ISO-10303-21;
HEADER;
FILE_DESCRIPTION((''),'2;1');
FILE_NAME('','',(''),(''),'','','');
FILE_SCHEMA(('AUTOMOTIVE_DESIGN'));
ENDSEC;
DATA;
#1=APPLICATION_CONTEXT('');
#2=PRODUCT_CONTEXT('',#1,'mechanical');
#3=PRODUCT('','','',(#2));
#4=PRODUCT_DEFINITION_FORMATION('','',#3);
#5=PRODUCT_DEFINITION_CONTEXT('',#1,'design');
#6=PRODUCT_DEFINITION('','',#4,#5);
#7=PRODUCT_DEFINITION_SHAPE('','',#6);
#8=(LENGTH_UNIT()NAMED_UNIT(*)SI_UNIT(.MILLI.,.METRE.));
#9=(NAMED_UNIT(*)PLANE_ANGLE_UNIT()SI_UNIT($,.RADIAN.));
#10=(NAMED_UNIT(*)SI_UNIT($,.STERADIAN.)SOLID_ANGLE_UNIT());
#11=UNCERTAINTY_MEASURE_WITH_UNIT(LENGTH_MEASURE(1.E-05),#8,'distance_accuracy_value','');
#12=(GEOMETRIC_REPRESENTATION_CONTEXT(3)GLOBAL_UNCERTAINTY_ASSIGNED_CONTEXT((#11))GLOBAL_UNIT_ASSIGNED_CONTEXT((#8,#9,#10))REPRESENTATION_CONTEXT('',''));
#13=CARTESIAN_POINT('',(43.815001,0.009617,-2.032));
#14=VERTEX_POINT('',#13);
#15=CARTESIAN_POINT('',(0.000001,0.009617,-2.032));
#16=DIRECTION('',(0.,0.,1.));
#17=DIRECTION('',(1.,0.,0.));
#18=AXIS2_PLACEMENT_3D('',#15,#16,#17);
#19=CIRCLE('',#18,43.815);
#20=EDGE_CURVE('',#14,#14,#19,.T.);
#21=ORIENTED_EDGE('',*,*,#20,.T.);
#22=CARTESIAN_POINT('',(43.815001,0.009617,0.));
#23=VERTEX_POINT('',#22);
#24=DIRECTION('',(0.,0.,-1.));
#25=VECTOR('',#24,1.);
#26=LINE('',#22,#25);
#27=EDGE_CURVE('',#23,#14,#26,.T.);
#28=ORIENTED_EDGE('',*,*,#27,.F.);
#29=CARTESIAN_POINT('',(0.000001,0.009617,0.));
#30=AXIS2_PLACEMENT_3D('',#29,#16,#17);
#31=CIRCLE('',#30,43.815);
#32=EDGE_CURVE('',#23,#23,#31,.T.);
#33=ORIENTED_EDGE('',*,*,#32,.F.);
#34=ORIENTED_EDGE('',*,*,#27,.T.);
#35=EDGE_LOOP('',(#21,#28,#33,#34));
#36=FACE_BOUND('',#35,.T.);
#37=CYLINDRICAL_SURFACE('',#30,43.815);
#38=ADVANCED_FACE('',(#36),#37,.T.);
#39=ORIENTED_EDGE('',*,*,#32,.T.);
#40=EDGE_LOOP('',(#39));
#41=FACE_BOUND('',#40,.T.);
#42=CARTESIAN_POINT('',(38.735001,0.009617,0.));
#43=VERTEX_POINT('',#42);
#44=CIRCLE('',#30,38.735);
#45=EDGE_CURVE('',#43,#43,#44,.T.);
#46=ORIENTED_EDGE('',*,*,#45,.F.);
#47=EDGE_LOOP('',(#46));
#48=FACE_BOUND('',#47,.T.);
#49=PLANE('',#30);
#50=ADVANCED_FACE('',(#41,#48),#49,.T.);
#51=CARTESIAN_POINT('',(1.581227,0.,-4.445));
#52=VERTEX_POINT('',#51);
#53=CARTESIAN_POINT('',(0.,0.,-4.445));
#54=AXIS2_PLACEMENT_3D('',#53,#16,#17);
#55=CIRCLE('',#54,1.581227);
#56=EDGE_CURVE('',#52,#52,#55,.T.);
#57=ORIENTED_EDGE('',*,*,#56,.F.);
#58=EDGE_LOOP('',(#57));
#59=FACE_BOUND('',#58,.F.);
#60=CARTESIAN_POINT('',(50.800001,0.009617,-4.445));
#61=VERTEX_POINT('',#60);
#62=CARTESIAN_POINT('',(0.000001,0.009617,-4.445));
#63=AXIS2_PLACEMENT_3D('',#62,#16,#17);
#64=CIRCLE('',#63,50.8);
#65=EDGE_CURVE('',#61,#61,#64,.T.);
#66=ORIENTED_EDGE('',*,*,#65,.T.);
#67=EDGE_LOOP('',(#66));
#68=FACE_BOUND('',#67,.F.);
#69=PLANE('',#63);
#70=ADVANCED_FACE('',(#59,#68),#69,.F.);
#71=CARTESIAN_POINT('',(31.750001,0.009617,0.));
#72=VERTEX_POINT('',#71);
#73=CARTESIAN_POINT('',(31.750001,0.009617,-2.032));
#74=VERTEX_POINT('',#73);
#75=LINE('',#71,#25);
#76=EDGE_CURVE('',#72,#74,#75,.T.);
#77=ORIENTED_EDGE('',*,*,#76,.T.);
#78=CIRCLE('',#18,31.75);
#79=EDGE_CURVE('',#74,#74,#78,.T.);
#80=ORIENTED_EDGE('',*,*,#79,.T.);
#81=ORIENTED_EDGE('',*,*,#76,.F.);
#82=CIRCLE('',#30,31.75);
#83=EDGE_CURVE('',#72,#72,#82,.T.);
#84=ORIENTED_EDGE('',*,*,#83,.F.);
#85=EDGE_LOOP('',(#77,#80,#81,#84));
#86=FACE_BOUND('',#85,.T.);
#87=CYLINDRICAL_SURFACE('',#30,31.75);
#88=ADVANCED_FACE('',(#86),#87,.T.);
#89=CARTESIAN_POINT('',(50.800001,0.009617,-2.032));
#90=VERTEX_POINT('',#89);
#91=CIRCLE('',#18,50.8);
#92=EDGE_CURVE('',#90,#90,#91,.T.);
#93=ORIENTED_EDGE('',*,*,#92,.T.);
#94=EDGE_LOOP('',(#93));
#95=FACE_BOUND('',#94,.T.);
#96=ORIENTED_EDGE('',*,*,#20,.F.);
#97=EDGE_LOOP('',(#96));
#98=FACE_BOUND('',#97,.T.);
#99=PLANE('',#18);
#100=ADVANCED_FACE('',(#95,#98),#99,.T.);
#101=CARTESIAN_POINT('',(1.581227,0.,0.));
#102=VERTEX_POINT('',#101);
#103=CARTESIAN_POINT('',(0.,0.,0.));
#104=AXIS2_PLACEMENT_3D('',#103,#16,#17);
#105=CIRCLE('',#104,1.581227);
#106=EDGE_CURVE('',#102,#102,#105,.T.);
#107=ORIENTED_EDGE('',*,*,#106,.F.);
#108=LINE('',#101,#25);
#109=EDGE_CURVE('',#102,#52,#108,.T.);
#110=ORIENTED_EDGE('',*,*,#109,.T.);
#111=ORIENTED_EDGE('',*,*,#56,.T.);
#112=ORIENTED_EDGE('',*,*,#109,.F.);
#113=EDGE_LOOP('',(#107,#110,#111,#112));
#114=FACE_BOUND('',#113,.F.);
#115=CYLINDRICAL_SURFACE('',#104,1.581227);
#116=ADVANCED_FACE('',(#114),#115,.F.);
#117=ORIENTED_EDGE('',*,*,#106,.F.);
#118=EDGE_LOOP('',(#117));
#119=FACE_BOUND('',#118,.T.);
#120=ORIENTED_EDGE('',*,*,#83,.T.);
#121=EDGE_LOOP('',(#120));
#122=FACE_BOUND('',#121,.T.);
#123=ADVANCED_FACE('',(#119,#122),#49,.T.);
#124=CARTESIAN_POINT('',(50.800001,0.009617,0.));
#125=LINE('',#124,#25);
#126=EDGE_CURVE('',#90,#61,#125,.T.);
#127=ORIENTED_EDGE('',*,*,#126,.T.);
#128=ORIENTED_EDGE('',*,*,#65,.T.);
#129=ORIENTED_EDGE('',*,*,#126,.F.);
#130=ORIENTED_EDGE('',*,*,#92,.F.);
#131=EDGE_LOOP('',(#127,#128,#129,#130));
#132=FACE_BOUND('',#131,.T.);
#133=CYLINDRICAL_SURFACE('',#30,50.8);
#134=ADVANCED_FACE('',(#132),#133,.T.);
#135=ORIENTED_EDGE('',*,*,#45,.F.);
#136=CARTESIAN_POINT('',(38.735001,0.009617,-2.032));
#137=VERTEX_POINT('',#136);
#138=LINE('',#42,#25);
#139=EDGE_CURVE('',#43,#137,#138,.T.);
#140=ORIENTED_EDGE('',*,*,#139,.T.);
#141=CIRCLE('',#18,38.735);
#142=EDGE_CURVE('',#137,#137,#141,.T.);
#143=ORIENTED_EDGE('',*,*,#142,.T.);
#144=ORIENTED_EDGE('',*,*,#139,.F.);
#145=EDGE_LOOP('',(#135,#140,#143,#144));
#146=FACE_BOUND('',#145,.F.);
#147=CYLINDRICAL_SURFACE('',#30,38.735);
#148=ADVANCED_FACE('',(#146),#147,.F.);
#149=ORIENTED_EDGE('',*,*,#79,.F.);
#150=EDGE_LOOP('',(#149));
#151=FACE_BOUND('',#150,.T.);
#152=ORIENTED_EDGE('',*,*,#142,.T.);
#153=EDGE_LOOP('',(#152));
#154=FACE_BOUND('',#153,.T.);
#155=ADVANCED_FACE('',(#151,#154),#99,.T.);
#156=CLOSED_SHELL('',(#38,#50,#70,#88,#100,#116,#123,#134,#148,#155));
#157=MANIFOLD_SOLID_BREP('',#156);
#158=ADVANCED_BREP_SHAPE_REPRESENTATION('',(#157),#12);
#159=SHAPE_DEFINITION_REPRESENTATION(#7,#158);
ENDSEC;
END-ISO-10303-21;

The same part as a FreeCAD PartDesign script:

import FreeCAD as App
import Part
import Sketcher
Q = App.Units.Quantity

doc = App.newDocument("Part")
body = doc.addObject("PartDesign::Body", "Body")

# Sketch on XY plane
sketch1 = body.newObject("Sketcher::SketchObject", "Sketch")
sketch1.AttachmentSupport = (doc.getObject("XY_Plane"), [""])
sketch1.MapMode = "FlatFace"
sketch1.addGeometry([
    Part.Circle(App.Vector(0, 0, 0), App.Vector(0, 0, 1), 50.8),
    Part.Circle(App.Vector(0, 0, 0), App.Vector(0, 0, 1), 1.6),
], False)
sketch1.addConstraint([
    Sketcher.Constraint("Coincident", 1, 3, -1, 1),
    Sketcher.Constraint("PointOnObject", 0, 3, -2),
    Sketcher.Constraint("Diameter", 0, Q("4 in")),
    Sketcher.Constraint("Diameter", 1, 3.162455),
    Sketcher.Constraint("DistanceY", -1, 1, 0, 3, 0.009617),
])
pad1 = body.newObject("PartDesign::Pad", "Pad")
pad1.Profile = sketch1
pad1.Length = Q("0.175 in")
pad1.Reversed = True

# Sketch on XY plane
sketch2 = body.newObject("Sketcher::SketchObject", "Sketch001")
sketch2.AttachmentSupport = (doc.getObject("XY_Plane"), [""])
sketch2.MapMode = "FlatFace"
sketch2.addGeometry([
    Part.Circle(App.Vector(0, 0, 0), App.Vector(0, 0, 1), 51),
    Part.Circle(App.Vector(0, 0, 0), App.Vector(0, 0, 1), 44),
    Part.Circle(App.Vector(0, 0, 0), App.Vector(0, 0, 1), 39),
    Part.Circle(App.Vector(0, 0, 0), App.Vector(0, 0, 1), 32),
], False)
sketch2.addConstraint([
    Sketcher.Constraint("Coincident", 1, 3, 0, 3),
    Sketcher.Constraint("Coincident", 2, 3, 0, 3),
    Sketcher.Constraint("Coincident", 3, 3, 0, 3),
    Sketcher.Constraint("PointOnObject", 0, 3, -2),
    Sketcher.Constraint("Diameter", 0, Q("4 in")),
    Sketcher.Constraint("Diameter", 3, Q("2.5 in")),
    Sketcher.Constraint("Diameter", 1, Q("3.45 in")),
    Sketcher.Constraint("Diameter", 2, Q("3.05 in")),
    Sketcher.Constraint("DistanceY", -1, 1, 0, 3, 0.009617),
])
pocket1 = body.newObject("PartDesign::Pocket", "Pocket")
pocket1.Profile = sketch2
pocket1.Length = Q("0.08 in")

doc.recompute()
